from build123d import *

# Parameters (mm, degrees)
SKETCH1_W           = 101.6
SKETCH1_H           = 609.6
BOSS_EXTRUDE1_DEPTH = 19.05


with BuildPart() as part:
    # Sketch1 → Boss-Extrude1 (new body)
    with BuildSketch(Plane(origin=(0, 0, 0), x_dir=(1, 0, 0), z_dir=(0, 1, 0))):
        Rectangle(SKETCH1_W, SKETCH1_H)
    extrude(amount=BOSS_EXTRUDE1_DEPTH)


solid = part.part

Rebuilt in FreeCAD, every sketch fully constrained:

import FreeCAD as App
import Part
import Sketcher
Q = App.Units.Quantity

doc = App.newDocument("Part")
body = doc.addObject("PartDesign::Body", "Body")

# Sketch on XZ plane
sketch1 = body.newObject("Sketcher::SketchObject", "Sketch")
sketch1.AttachmentSupport = (doc.getObject("XZ_Plane"), [""])
sketch1.MapMode = "FlatFace"
sketch1.addGeometry(Part.LineSegment(App.Vector(-51, -305, 0), App.Vector(-51, 305, 0)), False)
sketch1.addGeometry(Part.LineSegment(App.Vector(-51, 305, 0), App.Vector(51, 305, 0)), False)
sketch1.addGeometry(Part.LineSegment(App.Vector(51, 305, 0), App.Vector(51, -305, 0)), False)
sketch1.addGeometry(Part.LineSegment(App.Vector(51, -305, 0), App.Vector(-51, -305, 0)), False)
sketch1.addConstraint(Sketcher.Constraint("Coincident", 0, 2, 1, 1))
sketch1.addConstraint(Sketcher.Constraint("Coincident", 1, 2, 2, 1))
sketch1.addConstraint(Sketcher.Constraint("Coincident", 2, 2, 3, 1))
sketch1.addConstraint(Sketcher.Constraint("Coincident", 3, 2, 0, 1))
sketch1.addConstraint(Sketcher.Constraint("Vertical", 0))
sketch1.addConstraint(Sketcher.Constraint("Horizontal", 1))
sketch1.addConstraint(Sketcher.Constraint("Vertical", 2))
sketch1.addConstraint(Sketcher.Constraint("Horizontal", 3))
sketch1.addConstraint(Sketcher.Constraint("Symmetric", 0, 2, 2, 2, -1, 1))
sketch1.addConstraint(Sketcher.Constraint("DistanceX", 1, 1, 1, 2, Q("4 in")))
sketch1.addConstraint(Sketcher.Constraint("DistanceY", 0, 1, 0, 2, Q("24 in")))
pad1 = body.newObject("PartDesign::Pad", "Pad")
pad1.Profile = sketch1
pad1.Length = Q("0.75 in")
pad1.Reversed = True

doc.recompute()
